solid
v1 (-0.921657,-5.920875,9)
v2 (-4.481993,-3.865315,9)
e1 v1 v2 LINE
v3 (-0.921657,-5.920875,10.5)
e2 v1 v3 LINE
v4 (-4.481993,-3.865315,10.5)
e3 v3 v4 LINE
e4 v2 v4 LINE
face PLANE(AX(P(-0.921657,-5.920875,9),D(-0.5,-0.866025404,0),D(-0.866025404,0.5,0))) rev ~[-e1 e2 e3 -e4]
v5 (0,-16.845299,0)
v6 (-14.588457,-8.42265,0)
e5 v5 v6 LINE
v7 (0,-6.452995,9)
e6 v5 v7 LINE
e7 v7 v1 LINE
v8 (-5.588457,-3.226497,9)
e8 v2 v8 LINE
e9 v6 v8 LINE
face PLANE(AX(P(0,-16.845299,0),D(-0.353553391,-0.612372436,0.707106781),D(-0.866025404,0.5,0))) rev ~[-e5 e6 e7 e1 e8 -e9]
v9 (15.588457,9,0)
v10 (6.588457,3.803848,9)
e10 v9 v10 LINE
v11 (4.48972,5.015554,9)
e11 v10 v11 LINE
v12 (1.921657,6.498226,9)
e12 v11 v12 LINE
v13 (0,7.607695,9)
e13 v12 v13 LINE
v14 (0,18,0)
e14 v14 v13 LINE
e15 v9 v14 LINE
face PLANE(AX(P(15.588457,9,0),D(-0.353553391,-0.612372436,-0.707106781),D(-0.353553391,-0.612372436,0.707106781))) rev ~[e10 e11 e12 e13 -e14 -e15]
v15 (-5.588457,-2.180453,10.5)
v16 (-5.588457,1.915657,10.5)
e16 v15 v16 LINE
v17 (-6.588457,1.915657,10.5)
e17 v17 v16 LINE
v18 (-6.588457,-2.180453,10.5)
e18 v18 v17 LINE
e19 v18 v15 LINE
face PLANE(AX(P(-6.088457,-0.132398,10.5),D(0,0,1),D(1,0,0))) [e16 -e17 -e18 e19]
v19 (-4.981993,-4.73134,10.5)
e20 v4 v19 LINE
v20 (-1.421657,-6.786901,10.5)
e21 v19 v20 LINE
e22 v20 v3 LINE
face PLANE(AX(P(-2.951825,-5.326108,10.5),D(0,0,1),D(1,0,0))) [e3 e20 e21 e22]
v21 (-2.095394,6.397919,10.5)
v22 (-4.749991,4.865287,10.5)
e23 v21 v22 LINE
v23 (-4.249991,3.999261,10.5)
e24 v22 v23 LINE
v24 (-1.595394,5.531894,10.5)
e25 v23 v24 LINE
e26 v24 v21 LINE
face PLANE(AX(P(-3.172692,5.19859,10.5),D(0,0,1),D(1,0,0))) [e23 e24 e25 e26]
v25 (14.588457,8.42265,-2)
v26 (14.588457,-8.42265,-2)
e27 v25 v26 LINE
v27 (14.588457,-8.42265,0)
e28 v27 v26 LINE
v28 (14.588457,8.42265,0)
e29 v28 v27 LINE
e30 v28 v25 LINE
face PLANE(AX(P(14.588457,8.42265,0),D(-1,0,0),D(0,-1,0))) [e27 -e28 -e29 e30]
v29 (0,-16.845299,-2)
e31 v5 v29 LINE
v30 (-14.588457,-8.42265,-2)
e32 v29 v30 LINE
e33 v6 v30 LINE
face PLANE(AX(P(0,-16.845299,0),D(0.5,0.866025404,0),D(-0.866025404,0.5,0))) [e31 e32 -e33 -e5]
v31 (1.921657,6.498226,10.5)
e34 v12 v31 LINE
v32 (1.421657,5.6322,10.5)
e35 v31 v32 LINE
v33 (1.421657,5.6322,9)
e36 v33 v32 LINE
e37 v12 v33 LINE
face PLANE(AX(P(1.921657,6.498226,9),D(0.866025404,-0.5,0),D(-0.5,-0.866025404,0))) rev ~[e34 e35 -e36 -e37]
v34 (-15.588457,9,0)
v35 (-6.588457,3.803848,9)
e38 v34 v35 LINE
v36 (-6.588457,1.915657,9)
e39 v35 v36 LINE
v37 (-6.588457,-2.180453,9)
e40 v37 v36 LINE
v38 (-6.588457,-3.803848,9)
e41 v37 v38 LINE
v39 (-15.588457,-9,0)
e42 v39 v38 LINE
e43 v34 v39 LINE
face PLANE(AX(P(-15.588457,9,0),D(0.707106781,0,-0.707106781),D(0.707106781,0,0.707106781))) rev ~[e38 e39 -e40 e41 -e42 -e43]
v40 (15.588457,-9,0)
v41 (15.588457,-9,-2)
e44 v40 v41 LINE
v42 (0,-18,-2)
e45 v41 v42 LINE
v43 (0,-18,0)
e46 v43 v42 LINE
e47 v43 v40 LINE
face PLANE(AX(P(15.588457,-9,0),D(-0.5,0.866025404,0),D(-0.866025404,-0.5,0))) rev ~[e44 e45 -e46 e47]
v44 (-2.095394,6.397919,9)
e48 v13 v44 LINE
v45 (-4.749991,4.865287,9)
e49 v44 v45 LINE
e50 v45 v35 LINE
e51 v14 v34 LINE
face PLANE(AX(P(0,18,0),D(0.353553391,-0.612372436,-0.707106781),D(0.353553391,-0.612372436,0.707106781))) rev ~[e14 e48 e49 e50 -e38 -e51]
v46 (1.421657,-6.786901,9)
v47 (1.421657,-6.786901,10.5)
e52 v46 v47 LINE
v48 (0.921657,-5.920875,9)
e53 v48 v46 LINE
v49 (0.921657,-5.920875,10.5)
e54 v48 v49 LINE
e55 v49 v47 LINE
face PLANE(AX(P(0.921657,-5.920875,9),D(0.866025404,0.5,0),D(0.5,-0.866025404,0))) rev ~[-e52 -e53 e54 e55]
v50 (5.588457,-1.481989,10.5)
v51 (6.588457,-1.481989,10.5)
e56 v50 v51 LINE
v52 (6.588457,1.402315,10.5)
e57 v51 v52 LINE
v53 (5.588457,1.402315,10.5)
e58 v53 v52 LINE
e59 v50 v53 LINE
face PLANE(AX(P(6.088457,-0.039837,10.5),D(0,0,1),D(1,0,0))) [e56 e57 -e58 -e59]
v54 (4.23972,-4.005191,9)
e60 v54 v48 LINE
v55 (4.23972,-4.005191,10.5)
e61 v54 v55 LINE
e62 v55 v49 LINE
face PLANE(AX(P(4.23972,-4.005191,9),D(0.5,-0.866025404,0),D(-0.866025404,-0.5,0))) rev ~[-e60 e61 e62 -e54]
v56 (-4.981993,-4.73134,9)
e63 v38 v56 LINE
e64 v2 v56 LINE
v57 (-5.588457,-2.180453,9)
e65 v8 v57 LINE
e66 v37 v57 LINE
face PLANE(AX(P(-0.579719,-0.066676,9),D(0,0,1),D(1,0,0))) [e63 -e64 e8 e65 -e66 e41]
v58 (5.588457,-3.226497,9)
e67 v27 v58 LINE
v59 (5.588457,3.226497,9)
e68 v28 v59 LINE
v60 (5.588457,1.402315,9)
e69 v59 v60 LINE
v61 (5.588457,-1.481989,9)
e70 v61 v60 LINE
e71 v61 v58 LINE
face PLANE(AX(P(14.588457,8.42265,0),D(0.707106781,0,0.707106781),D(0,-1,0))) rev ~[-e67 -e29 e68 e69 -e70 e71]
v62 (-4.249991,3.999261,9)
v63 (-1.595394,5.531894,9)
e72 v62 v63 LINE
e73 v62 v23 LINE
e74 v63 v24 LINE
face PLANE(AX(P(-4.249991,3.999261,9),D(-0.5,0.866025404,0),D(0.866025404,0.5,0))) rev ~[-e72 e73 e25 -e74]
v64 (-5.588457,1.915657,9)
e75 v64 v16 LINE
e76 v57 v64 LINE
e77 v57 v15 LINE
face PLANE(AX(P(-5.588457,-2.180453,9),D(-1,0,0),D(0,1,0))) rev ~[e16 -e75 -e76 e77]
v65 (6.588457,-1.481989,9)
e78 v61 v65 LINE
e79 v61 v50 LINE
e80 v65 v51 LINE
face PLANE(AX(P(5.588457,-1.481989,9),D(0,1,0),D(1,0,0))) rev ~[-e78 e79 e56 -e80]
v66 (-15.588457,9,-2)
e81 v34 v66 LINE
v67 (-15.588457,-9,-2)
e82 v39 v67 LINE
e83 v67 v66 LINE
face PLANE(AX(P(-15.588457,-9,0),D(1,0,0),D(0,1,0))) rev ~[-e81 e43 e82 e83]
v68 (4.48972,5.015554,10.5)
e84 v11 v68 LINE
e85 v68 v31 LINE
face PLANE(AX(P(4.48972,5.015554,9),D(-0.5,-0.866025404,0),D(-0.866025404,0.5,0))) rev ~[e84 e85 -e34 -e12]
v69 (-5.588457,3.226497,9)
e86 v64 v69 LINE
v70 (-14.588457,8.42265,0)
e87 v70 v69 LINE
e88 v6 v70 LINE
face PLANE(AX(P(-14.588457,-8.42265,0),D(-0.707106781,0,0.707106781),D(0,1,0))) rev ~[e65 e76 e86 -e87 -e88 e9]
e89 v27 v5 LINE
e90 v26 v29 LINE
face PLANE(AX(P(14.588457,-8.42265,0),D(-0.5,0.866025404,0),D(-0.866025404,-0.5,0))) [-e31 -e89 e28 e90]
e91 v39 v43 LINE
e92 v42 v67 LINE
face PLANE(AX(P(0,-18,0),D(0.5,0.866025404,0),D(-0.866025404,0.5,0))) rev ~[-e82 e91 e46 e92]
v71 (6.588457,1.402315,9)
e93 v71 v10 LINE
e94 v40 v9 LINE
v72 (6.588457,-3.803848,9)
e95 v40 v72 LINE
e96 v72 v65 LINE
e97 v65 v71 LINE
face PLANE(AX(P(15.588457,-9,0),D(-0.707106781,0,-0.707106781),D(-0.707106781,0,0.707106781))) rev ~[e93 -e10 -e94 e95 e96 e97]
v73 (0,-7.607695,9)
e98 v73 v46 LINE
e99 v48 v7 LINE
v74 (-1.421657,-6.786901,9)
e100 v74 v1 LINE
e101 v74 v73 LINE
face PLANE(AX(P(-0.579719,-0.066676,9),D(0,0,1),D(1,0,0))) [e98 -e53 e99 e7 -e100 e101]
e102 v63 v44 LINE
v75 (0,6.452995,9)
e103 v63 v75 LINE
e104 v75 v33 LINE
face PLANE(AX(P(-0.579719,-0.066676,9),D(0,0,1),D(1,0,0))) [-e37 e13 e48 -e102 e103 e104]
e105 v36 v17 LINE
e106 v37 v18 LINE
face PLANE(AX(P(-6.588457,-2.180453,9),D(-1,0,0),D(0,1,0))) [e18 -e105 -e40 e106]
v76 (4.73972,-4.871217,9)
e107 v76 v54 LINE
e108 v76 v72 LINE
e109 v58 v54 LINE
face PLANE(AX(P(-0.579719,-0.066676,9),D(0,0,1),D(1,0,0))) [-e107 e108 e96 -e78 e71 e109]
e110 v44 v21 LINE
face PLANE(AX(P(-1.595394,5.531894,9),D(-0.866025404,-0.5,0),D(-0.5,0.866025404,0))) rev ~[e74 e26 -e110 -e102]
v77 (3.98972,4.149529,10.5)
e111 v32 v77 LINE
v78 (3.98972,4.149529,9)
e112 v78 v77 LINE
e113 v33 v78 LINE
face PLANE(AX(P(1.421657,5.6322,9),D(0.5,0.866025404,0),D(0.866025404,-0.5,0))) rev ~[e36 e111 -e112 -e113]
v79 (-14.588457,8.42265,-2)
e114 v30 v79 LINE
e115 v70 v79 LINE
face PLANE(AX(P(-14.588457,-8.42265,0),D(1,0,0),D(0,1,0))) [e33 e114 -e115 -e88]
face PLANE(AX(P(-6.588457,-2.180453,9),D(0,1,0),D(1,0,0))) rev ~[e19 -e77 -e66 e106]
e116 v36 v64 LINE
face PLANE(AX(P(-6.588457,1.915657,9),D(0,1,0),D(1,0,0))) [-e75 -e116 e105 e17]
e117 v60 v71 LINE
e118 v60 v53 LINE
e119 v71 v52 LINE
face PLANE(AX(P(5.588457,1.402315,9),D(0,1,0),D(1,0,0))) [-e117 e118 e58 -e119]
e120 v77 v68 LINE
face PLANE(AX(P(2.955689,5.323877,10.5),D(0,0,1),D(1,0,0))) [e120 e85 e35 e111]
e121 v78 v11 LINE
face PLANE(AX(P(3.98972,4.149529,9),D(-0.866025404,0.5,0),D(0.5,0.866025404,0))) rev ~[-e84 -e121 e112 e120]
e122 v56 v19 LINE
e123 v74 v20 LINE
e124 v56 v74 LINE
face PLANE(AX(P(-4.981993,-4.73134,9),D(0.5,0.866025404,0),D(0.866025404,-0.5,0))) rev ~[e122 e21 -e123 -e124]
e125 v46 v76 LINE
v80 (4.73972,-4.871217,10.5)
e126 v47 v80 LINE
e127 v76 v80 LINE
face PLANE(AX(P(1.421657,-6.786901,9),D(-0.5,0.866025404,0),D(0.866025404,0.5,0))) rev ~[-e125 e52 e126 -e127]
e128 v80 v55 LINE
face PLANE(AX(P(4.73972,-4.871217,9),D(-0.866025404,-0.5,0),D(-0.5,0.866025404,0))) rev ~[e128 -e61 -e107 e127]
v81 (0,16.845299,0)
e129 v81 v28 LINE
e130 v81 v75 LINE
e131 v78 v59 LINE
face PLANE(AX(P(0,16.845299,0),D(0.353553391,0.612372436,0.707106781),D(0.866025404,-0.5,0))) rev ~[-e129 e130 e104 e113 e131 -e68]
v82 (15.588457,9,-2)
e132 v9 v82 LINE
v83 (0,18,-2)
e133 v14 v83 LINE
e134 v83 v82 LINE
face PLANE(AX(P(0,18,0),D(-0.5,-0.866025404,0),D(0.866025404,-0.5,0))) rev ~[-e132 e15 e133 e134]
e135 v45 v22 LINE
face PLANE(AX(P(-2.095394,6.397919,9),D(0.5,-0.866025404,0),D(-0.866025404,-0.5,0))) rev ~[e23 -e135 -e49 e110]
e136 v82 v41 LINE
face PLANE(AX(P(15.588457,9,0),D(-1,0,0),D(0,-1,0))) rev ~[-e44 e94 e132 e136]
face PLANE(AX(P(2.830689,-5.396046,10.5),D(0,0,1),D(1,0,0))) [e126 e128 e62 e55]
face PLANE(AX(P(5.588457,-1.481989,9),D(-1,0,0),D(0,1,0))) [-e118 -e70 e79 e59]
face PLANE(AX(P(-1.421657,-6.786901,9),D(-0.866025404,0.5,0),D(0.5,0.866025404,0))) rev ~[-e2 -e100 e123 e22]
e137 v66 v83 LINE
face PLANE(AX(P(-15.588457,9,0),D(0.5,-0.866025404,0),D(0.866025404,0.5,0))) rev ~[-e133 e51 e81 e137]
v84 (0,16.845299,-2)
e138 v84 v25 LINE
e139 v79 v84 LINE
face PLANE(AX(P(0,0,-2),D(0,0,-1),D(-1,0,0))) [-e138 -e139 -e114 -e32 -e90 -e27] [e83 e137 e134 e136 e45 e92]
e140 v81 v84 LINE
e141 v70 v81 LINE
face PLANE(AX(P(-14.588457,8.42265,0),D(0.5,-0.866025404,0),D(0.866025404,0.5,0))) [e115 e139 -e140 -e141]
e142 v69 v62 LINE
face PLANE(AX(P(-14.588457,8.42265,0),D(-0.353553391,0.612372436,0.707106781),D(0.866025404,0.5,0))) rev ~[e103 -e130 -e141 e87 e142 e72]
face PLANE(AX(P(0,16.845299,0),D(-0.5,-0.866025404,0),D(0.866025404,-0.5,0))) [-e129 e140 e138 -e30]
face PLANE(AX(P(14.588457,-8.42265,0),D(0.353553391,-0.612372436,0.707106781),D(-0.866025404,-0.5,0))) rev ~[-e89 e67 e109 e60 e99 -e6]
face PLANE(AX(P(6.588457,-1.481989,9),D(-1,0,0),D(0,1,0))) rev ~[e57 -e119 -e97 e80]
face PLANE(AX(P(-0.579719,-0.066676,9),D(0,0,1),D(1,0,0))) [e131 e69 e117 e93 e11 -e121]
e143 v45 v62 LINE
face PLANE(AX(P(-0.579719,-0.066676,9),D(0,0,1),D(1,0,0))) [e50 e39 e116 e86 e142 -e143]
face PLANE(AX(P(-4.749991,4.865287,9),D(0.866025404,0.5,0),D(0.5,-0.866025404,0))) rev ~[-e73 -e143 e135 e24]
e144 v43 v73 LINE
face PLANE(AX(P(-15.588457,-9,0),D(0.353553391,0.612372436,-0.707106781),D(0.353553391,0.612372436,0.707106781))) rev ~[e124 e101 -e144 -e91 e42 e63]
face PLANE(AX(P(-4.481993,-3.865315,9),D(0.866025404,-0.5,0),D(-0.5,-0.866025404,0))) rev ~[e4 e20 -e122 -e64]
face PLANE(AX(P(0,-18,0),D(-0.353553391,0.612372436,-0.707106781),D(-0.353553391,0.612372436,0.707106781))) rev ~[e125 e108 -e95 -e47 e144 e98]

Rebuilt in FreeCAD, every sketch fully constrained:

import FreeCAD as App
import Part
import Sketcher

V = App.Vector
Q = App.Units.Quantity


def faces_at(feature, points):
    """Names of the faces that lie closest to the given points."""
    faces = feature.Shape.Faces
    near = lambda p: min(range(len(faces)), key=lambda i: faces[i].distToShape(Part.Vertex(*p))[0])
    return sorted({f"Face{near(p) + 1}" for p in points})


def add_polygon(sketch, points):
    """Adds a closed chain of lines whose ends are joined by coincident constraints."""
    first, n = sketch.GeometryCount, len(points)
    for a, b in zip(points, points[1:] + points[:1]):
        sketch.addGeometry(Part.LineSegment(App.Vector(*a, 0), App.Vector(*b, 0)), False)
    for i in range(n):
        sketch.addConstraint(Sketcher.Constraint("Coincident", first + i, 2, first + (i + 1) % n, 1))

doc = App.newDocument("Part")
body = doc.addObject("PartDesign::Body", "Body")

# Sketch on XY plane
sketch1 = doc.addObject("Sketcher::SketchObject", "Sketch")
body.addObject(sketch1)
sketch1.AttachmentSupport = (doc.XY_Plane, [""])
sketch1.MapMode = "FlatFace"
add_polygon(sketch1, [(0, 18), (-16, 9), (-16, -9), (0, -18), (16, -9), (16, 9)])  # lines 0-5
sketch1.addConstraint([
    Sketcher.Constraint("Vertical", 1),
    Sketcher.Constraint("Vertical", 4),
    Sketcher.Constraint("Symmetric", 0, 2, 3, 2, -1, 1),
    Sketcher.Constraint("Symmetric", 2, 2, 5, 2, -1, 1),
    Sketcher.Constraint("PointOnObject", 2, 2, -2),
    Sketcher.Constraint("Parallel", 2, 5),
    Sketcher.Constraint("Horizontal", 1, 2, 3, 2),
    Sketcher.Constraint("DistanceY", 1, 2, 1, 1, 18.0),
    Sketcher.Constraint("Angle", 0, Q("-150 deg")),
    Sketcher.Constraint("Distance", 0, 18.0),
])
pad1 = doc.addObject("PartDesign::Pad", "Pad")
body.addObject(pad1)
pad1.Profile = sketch1
pad1.Length = 10
pad1.TaperAngle = -45
body2 = doc.addObject("PartDesign::Body", "Body001")

# Sketch on XY plane
sketch2 = doc.addObject("Sketcher::SketchObject", "Sketch001")
body2.addObject(sketch2)
sketch2.AttachmentSupport = (doc.getObject("XY_Plane001"), [""])
sketch2.MapMode = "FlatFace"
add_polygon(sketch2, [(0, -17), (-15, -8), (-15, 8), (0, 17), (15, 8), (15, -8)])  # lines 0-5
sketch2.addConstraint([
    Sketcher.Constraint("Vertical", 1),
    Sketcher.Constraint("Vertical", 4),
    Sketcher.Constraint("Symmetric", 0, 2, 3, 2, -1, 1),
    Sketcher.Constraint("Symmetric", 2, 2, 5, 2, -1, 1),
    Sketcher.Constraint("PointOnObject", 2, 2, -2),
    Sketcher.Constraint("Parallel", 2, 5),
    Sketcher.Constraint("Horizontal", 1, 2, 3, 2),
    Sketcher.Constraint("Angle", 0, Q("150 deg")),
    Sketcher.Constraint("DistanceY", 1, 1, 1, 2, 16.845299),
    Sketcher.Constraint("Distance", 0, 16.845299),
])
pad2 = doc.addObject("PartDesign::Pad", "Pad001")
body2.addObject(pad2)
pad2.Profile = sketch2
pad2.Length = 10
doc.recompute()

draft = doc.addObject("PartDesign::Draft", "Draft")
body2.addObject(draft)
draft.Base = (pad2, faces_at(pad2, [
    (-7.294, -12.634, 5),
    (-14.588, 0, 5),
    (-7.294, 12.634, 5),
    (7.294, 12.634, 5),
    (14.588, 0, 5),
    (7.294, -12.634, 5),
]))
draft.NeutralPlane = (doc.getObject("XY_Plane001"), [""])
draft.Angle = 45
draft.Reversed = False
doc.recompute()

boolean = doc.addObject("PartDesign::Boolean", "Boolean")
body.addObject(boolean)
boolean.Type = "Cut"
boolean.addObjects([body2])

# Sketch on XY plane
sketch3 = doc.addObject("Sketcher::SketchObject", "Sketch002")
body.addObject(sketch3)
sketch3.AttachmentSupport = (doc.XY_Plane, [""])
sketch3.MapMode = "FlatFace"
sketch3.AttachmentOffset = App.Placement(V(0, 0, 10), App.Rotation())
add_polygon(sketch3, [(-10, 9), (-10, -9), (9, -9), (9, 9)])  # lines 0-3
sketch3.addConstraint([
    Sketcher.Constraint("Vertical", 0),
    Sketcher.Constraint("Horizontal", 1),
    Sketcher.Constraint("Vertical", 2),
    Sketcher.Constraint("Horizontal", 3),
    Sketcher.Constraint("DistanceX", 1, 1, 1, 2, 18.456832),
    Sketcher.Constraint("DistanceY", 0, 2, 0, 1, 18.613242),
    Sketcher.Constraint("DistanceX", 0, 2, -1, 1, 9.808135),
    Sketcher.Constraint("DistanceY", 0, 2, -1, 1, 9.373297),
])
pocket1 = doc.addObject("PartDesign::Pocket", "Pocket")
body.addObject(pocket1)
pocket1.Profile = sketch3
pocket1.Length = 1

# Sketch on XY plane
sketch4 = doc.addObject("Sketcher::SketchObject", "Sketch003")
body.addObject(sketch4)
sketch4.AttachmentSupport = (doc.XY_Plane, [""])
sketch4.MapMode = "FlatFace"
add_polygon(sketch4, [(0, 18), (16, 9), (16, -9), (0, -18), (-16, -9), (-16, 9)])  # lines 0-5
add_polygon(sketch4, [(15, 8), (0, 17), (-15, 8), (-15, -8), (0, -17), (15, -8)])  # lines 6-11
sketch4.addConstraint([
    Sketcher.Constraint("Vertical", 1),
    Sketcher.Constraint("Vertical", 4),
    Sketcher.Constraint("Vertical", 8),
    Sketcher.Constraint("Vertical", 11),
    Sketcher.Constraint("Symmetric", 0, 2, 3, 2, -1, 1),
    Sketcher.Constraint("Symmetric", 2, 2, 5, 2, -1, 1),
    Sketcher.Constraint("Symmetric", 6, 2, 9, 2, -1, 1),
    Sketcher.Constraint("Symmetric", 7, 2, 10, 2, -1, 1),
    Sketcher.Constraint("PointOnObject", 2, 2, -2),
    Sketcher.Constraint("PointOnObject", 6, 2, -2),
    Sketcher.Constraint("Parallel", 2, 5),
    Sketcher.Constraint("Parallel", 3, 6),
    Sketcher.Constraint("Parallel", 5, 7),
    Sketcher.Constraint("Parallel", 6, 9),
    Sketcher.Constraint("Horizontal", 1, 2, 3, 2),
    Sketcher.Constraint("DistanceY", 1, 2, 1, 1, 18.0),
    Sketcher.Constraint("Angle", 0, Q("-30 deg")),
    Sketcher.Constraint("Distance", 0, 18.0),
    Sketcher.Constraint("DistanceX", 4, 2, 7, 2, 1.0),
    Sketcher.Constraint("DistanceY", 8, 2, 8, 1, 16.845299),
])
pad3 = doc.addObject("PartDesign::Pad", "Pad002")
body.addObject(pad3)
pad3.Profile = sketch4
pad3.Length = 2
pad3.Reversed = True

# Sketch on XY plane
sketch5 = doc.addObject("Sketcher::SketchObject", "Sketch004")
body.addObject(sketch5)
sketch5.AttachmentSupport = (doc.XY_Plane, [""])
sketch5.MapMode = "FlatFace"
sketch5.AttachmentOffset = App.Placement(V(0, 0, 9), App.Rotation())
add_polygon(sketch5, [(-4.7, 4.9), (-4.2, 4), (-1.6, 5.5), (-2.1, 6.4)])  # lines 0-3
add_polygon(sketch5, [(1.9, 6.5), (1.4, 5.6), (4, 4.1), (4.5, 5)])  # lines 4-7
add_polygon(sketch5, [(5.6, 1.4), (5.6, -1.5), (6.6, -1.5), (6.6, 1.4)])  # lines 8-11
add_polygon(sketch5, [(4.7, -4.9), (4.2, -4), (0.9, -5.9), (1.4, -6.8)])  # lines 12-15
add_polygon(sketch5, [(-1.4, -6.8), (-0.9, -5.9), (-4.5, -3.9), (-5, -4.7)])  # lines 16-19
add_polygon(sketch5, [(-6.6, 1.9), (-6.6, -2.2), (-5.6, -2.2), (-5.6, 1.9)])  # lines 20-23
sketch5.addConstraint([
    Sketcher.Constraint("Vertical", 8),
    Sketcher.Constraint("Horizontal", 9),
    Sketcher.Constraint("Vertical", 10),
    Sketcher.Constraint("Horizontal", 11),
    Sketcher.Constraint("Vertical", 20),
    Sketcher.Constraint("Horizontal", 21),
    Sketcher.Constraint("Vertical", 22),
    Sketcher.Constraint("Horizontal", 23),
    Sketcher.Constraint("Symmetric", 13, 2, 16, 2, -2),
    Sketcher.Constraint("Symmetric", 14, 2, 19, 2, -2),
    Sketcher.Constraint("Perpendicular", 0, 1),
    Sketcher.Constraint("Perpendicular", 1, 2),
    Sketcher.Constraint("Perpendicular", 2, 3),
    Sketcher.Constraint("Perpendicular", 4, 5),
    Sketcher.Constraint("Perpendicular", 5, 6),
    Sketcher.Constraint("Perpendicular", 6, 7),
    Sketcher.Constraint("Perpendicular", 3, 12),
    Sketcher.Constraint("Perpendicular", 12, 13),
    Sketcher.Constraint("Perpendicular", 13, 14),
    Sketcher.Constraint("Perpendicular", 14, 15),
    Sketcher.Constraint("Perpendicular", 7, 16),
    Sketcher.Constraint("Perpendicular", 16, 17),
    Sketcher.Constraint("Perpendicular", 17, 18),
    Sketcher.Constraint("Perpendicular", 18, 19),
    Sketcher.Constraint("Vertical", 4, 2, 14, 2),
    Sketcher.Constraint("Equal", 11, 21),
    Sketcher.Constraint("Equal", 2, 4),
    Sketcher.Constraint("Equal", 6, 12),
    Sketcher.Constraint("DistanceX", 9, 1, 9, 2, 1.0),
    Sketcher.Constraint("Angle", 0, Q("-60 deg")),
    Sketcher.Constraint("Distance", 0, 1.0),
    Sketcher.Constraint("DistanceX", 5, 2, 12, 2, 0.25),
    Sketcher.Constraint("DistanceY", 20, 2, 20, 1, 4.096111),
    Sketcher.Constraint("DistanceY", -1, 1, 4, 2, 5.6322),
    Sketcher.Constraint("DistanceY", 14, 2, -1, 1, 6.786901),
    Sketcher.Constraint("DistanceX", 4, 2, 8, 2, 4.1668),
    Sketcher.Constraint("DistanceY", 18, 2, 0, 2, 8.730601),
    Sketcher.Constraint("DistanceX", 20, 2, 16, 2, 5.6668),
    Sketcher.Constraint("Distance", 13, 3.831368),
    Sketcher.Constraint("Distance", 17, 4.111122),
    Sketcher.Constraint("DistanceY", 8, 2, 8, 1, 2.884304),
    Sketcher.Constraint("DistanceX", 0, 2, -1, 1, 4.249991),
    Sketcher.Constraint("DistanceY", -1, 1, 2, 2, 6.397919),
    Sketcher.Constraint("DistanceX", -1, 1, 5, 2, 3.98972),
    Sketcher.Constraint("DistanceY", 8, 2, -1, 1, 1.481989),
    Sketcher.Constraint("DistanceY", 17, 2, 20, 2, 1.684862),
])
pad4 = doc.addObject("PartDesign::Pad", "Pad003")
body.addObject(pad4)
pad4.Profile = sketch5
pad4.Length = 1.5

doc.recompute()
